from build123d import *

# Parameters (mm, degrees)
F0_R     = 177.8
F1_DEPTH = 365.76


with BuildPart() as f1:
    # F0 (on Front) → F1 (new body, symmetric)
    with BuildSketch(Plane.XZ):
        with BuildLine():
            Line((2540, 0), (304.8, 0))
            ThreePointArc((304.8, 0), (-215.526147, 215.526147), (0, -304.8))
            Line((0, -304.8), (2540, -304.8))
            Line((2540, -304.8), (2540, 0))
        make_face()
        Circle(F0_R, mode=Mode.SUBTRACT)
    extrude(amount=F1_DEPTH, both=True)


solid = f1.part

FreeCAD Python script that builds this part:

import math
import FreeCAD as App
import Part
import Sketcher

V = App.Vector
Q = App.Units.Quantity

doc = App.newDocument("Part")
body = doc.addObject("PartDesign::Body", "Body")

# Sketch on XZ plane
sketch1 = body.newObject("Sketcher::SketchObject", "Sketch")
sketch1.AttachmentSupport = (doc.getObject("XZ_Plane"), [""])
sketch1.MapMode = "FlatFace"
sketch1.addGeometry(Part.LineSegment(V(2540, 0, 0), V(305, 0, 0)), False)
sketch1.addGeometry(Part.ArcOfCircle(Part.Circle(V(0, 0, 0), V(0, 0, 1), 305), math.radians(0), math.radians(270)), False)
sketch1.addGeometry(Part.LineSegment(V(0, -305, 0), V(2540, -305, 0)), False)
sketch1.addGeometry(Part.LineSegment(V(2540, -305, 0), V(2540, 0, 0)), False)
sketch1.addGeometry(Part.Circle(V(0, 0, 0), V(0, 0, 1), 178), False)
sketch1.addConstraint(Sketcher.Constraint("Coincident", 0, 2, 1, 1))
sketch1.addConstraint(Sketcher.Constraint("Tangent", 1, 2, 2, 1))
sketch1.addConstraint(Sketcher.Constraint("Coincident", 2, 2, 3, 1))
sketch1.addConstraint(Sketcher.Constraint("Coincident", 3, 2, 0, 1))
sketch1.addConstraint(Sketcher.Constraint("Horizontal", 0))
sketch1.addConstraint(Sketcher.Constraint("Horizontal", 2))
sketch1.addConstraint(Sketcher.Constraint("Vertical", 3))
sketch1.addConstraint(Sketcher.Constraint("Coincident", 1, 3, -1, 1))
sketch1.addConstraint(Sketcher.Constraint("Coincident", 4, 3, -1, 1))
sketch1.addConstraint(Sketcher.Constraint("PointOnObject", 0, 2, -1))
sketch1.addConstraint(Sketcher.Constraint("Diameter", 4, Q("14 in")))
sketch1.addConstraint(Sketcher.Constraint("Radius", 1, Q("12 in")))
sketch1.addConstraint(Sketcher.Constraint("DistanceX", 0, 2, 0, 1, Q("88 in")))
pad1 = body.newObject("PartDesign::Pad", "Pad")
pad1.Profile = sketch1
pad1.Length = Q("28.8 in")
pad1.Midplane = True

doc.recompute()
